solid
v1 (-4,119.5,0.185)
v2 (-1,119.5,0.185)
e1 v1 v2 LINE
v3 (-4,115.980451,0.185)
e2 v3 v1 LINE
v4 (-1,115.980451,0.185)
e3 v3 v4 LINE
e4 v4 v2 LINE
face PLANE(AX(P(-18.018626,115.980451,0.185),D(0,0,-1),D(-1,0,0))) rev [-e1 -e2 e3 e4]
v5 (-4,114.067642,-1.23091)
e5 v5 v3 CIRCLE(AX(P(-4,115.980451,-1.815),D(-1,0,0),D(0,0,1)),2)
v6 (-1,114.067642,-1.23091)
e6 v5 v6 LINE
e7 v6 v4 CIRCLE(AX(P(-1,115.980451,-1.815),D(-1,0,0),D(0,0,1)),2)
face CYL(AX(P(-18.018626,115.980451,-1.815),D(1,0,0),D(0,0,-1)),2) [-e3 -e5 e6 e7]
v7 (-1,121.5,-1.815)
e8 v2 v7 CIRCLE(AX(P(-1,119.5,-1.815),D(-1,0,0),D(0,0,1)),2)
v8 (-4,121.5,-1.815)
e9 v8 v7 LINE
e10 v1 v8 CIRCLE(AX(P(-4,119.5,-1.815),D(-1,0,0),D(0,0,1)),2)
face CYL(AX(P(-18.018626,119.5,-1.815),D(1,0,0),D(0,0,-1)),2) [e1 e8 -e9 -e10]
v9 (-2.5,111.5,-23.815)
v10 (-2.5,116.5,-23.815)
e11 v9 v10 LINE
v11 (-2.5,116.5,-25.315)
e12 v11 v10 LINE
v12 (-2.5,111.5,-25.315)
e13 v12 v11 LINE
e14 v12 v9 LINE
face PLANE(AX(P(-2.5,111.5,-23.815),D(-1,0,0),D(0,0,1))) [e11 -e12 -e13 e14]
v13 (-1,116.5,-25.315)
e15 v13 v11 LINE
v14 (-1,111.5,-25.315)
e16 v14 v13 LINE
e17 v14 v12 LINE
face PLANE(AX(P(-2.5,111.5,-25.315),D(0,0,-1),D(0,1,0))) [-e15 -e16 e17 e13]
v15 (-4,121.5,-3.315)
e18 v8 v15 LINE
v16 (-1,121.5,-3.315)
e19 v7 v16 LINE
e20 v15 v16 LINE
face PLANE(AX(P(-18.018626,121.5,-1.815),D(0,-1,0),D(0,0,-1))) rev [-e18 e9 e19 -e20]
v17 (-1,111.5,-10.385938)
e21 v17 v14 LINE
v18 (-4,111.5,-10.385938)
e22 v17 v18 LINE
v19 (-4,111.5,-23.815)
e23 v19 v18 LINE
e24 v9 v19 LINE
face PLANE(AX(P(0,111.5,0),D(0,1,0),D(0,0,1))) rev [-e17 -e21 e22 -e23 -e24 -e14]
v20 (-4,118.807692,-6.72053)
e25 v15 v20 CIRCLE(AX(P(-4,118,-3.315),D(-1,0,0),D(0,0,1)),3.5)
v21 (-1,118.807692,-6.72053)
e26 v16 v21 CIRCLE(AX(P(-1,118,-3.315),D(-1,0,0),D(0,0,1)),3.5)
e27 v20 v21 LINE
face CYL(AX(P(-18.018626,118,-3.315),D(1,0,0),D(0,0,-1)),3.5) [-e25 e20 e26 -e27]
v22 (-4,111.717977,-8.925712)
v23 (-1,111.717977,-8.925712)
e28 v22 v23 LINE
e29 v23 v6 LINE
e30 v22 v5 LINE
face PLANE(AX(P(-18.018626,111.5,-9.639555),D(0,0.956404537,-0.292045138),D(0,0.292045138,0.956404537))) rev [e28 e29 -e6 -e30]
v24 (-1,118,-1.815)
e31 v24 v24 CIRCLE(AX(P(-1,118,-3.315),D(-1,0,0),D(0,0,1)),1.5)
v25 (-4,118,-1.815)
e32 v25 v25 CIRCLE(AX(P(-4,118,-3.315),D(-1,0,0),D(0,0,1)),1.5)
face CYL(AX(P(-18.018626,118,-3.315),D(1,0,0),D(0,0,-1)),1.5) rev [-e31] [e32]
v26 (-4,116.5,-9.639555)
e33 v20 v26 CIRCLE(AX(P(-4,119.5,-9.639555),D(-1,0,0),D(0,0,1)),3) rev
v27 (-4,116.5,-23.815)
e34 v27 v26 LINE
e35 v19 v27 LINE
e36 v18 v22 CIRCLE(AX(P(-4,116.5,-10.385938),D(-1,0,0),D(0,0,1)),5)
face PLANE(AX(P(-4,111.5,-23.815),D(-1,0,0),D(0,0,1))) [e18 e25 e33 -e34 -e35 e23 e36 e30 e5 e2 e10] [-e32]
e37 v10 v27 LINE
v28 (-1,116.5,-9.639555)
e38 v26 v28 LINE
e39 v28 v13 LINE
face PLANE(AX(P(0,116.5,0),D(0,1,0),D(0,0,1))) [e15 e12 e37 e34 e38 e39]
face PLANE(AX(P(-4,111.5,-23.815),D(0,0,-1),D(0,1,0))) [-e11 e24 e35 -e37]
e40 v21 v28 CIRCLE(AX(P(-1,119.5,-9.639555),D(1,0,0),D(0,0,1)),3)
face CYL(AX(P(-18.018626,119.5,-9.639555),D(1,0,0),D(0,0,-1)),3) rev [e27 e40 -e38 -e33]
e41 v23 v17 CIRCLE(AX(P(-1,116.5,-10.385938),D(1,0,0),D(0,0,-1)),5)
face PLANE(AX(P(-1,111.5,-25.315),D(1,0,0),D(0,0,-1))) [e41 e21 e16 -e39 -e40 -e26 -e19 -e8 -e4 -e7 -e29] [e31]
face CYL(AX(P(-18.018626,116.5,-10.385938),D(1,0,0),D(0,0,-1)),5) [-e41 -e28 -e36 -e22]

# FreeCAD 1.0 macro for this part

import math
import FreeCAD as App
import Part
import Sketcher
from FreeCAD import Vector


def edges_at(feature, points):
    """Names of the edges that pass closest to the given points."""
    edges = feature.Shape.Edges
    near = lambda p: min(range(len(edges)), key=lambda i: edges[i].distToShape(Part.Vertex(*p))[0])
    return sorted({f"Edge{near(p) + 1}" for p in points})


def add_polygon(sketch, points):
    """Adds a closed chain of lines whose ends are joined by coincident constraints."""
    first, n = sketch.GeometryCount, len(points)
    for a, b in zip(points, points[1:] + points[:1]):
        sketch.addGeometry(Part.LineSegment(App.Vector(*a, 0), App.Vector(*b, 0)), False)
    for i in range(n):
        sketch.addConstraint(Sketcher.Constraint("Coincident", first + i, 2, first + (i + 1) % n, 1))

doc = App.newDocument("Part")
body = doc.addObject("PartDesign::Body", "Body")

sketch1 = body.newObject("Sketcher::SketchObject", "Sketch")
sketch1.AttachmentSupport = (doc.getObject("XZ_Plane"), [""])
sketch1.MapMode = "FlatFace"
sketch1.AttachmentOffset = App.Placement(Vector(0, 0, -116.5), App.Rotation())
add_polygon(sketch1, [(-2.5, -23.8), (-4, -23.8), (-4, -9.6), (-1, -9.6), (-1, -25.3), (-2.5, -25.3)])
sketch1.addConstraint([
    Sketcher.Constraint("Horizontal", 0),
    Sketcher.Constraint("Vertical", 1),
    Sketcher.Constraint("Horizontal", 2),
    Sketcher.Constraint("Vertical", 3),
    Sketcher.Constraint("Horizontal", 4),
    Sketcher.Constraint("Vertical", 5),
    Sketcher.Constraint("Equal", 0, 4),
    Sketcher.Constraint("Equal", 4, 5),
    Sketcher.Constraint("DistanceX", 2, 1, 2, 2, 3.0),
    Sketcher.Constraint("DistanceX", 0, 2, -1, 1, 4.0),
    Sketcher.Constraint("DistanceY", 0, 2, -1, 1, 23.815),
    Sketcher.Constraint("DistanceY", 1, 1, 1, 2, 14.175445),
])
pad1 = body.newObject("PartDesign::Pad", "Pad")
pad1.Profile = sketch1
pad1.Length = 5

sketch2 = body.newObject("Sketcher::SketchObject", "Sketch001")
sketch2.AttachmentSupport = (doc.getObject("YZ_Plane"), [""])
sketch2.MapMode = "FlatFace"
sketch2.AttachmentOffset = App.Placement(Vector(0, 0, -1), App.Rotation())
sketch2.addGeometry([
    Part.LineSegment(Vector(111.5, -9.6, 0), Vector(114.1, -1.2, 0)),
    Part.ArcOfCircle(Part.Circle(Vector(116, -1.8, 0), Vector(0, 0, 1), 2), math.radians(90), math.radians(163)),
    Part.LineSegment(Vector(116, 0.2, 0), Vector(119.5, 0.2, 0)),
    Part.ArcOfCircle(Part.Circle(Vector(119.5, -1.8, 0), Vector(0, 0, 1), 2), math.radians(0), math.radians(90)),
    Part.LineSegment(Vector(121.5, -1.8, 0), Vector(121.5, -3.3, 0)),
    Part.ArcOfCircle(Part.Circle(Vector(118, -3.3, 0), Vector(0, 0, 1), 3.5), math.radians(-77), math.radians(0)),
    Part.ArcOfCircle(Part.Circle(Vector(119.5, -9.6, 0), Vector(0, 0, 1), 3), math.radians(103), math.radians(180)),
    Part.LineSegment(Vector(116.5, -9.6, 0), Vector(111.5, -9.6, 0)),
    Part.Circle(Vector(118, -3.3, 0), Vector(0, 0, 1), 1.5),
], False)
sketch2.addConstraint([
    Sketcher.Constraint("Tangent", 0, 2, 1, 2),
    Sketcher.Constraint("Tangent", 1, 1, 2, 1),
    Sketcher.Constraint("Tangent", 2, 2, 3, 2),
    Sketcher.Constraint("Tangent", 3, 1, 4, 1),
    Sketcher.Constraint("Tangent", 4, 2, 5, 2),
    Sketcher.Constraint("Tangent", 5, 1, 6, 1),
    Sketcher.Constraint("Coincident", 6, 2, 7, 1),
    Sketcher.Constraint("Coincident", 7, 2, 0, 1),
    Sketcher.Constraint("Horizontal", 2),
    Sketcher.Constraint("Vertical", 4),
    Sketcher.Constraint("Horizontal", 7),
    Sketcher.Constraint("Coincident", 8, 3, 5, 3),
    Sketcher.Constraint("Equal", 1, 3),
    Sketcher.Constraint("Vertical", 3, 3, 6, 3),
    Sketcher.Constraint("Diameter", 8, 3.0),
    Sketcher.Constraint("Radius", 1, 2.0),
    Sketcher.Constraint("Radius", 6, 3.0),
    Sketcher.Constraint("Radius", 5, 3.5),
    Sketcher.Constraint("DistanceX", 7, 2, 7, 1, 5.0),
    Sketcher.Constraint("DistanceY", 4, 2, 4, 1, 1.5),
    Sketcher.Constraint("DistanceX", -1, 1, 5, 3, 118.0),
    Sketcher.Constraint("DistanceY", 1, 3, -1, 1, 1.815),
    Sketcher.Constraint("DistanceX", 2, 1, 2, 2, 3.519549),
    Sketcher.Constraint("DistanceX", -1, 1, 0, 2, 114.067642),
])
pad2 = body.newObject("PartDesign::Pad", "Pad001")
pad2.Profile = sketch2
pad2.Length = 3
pad2.Reversed = True
doc.recompute()

fillet = body.newObject("PartDesign::Fillet", "Fillet")
fillet.Base = (pad2, edges_at(pad2, [(-2.5, 111.5, -9.64)]))
fillet.Radius = 5

doc.recompute()
